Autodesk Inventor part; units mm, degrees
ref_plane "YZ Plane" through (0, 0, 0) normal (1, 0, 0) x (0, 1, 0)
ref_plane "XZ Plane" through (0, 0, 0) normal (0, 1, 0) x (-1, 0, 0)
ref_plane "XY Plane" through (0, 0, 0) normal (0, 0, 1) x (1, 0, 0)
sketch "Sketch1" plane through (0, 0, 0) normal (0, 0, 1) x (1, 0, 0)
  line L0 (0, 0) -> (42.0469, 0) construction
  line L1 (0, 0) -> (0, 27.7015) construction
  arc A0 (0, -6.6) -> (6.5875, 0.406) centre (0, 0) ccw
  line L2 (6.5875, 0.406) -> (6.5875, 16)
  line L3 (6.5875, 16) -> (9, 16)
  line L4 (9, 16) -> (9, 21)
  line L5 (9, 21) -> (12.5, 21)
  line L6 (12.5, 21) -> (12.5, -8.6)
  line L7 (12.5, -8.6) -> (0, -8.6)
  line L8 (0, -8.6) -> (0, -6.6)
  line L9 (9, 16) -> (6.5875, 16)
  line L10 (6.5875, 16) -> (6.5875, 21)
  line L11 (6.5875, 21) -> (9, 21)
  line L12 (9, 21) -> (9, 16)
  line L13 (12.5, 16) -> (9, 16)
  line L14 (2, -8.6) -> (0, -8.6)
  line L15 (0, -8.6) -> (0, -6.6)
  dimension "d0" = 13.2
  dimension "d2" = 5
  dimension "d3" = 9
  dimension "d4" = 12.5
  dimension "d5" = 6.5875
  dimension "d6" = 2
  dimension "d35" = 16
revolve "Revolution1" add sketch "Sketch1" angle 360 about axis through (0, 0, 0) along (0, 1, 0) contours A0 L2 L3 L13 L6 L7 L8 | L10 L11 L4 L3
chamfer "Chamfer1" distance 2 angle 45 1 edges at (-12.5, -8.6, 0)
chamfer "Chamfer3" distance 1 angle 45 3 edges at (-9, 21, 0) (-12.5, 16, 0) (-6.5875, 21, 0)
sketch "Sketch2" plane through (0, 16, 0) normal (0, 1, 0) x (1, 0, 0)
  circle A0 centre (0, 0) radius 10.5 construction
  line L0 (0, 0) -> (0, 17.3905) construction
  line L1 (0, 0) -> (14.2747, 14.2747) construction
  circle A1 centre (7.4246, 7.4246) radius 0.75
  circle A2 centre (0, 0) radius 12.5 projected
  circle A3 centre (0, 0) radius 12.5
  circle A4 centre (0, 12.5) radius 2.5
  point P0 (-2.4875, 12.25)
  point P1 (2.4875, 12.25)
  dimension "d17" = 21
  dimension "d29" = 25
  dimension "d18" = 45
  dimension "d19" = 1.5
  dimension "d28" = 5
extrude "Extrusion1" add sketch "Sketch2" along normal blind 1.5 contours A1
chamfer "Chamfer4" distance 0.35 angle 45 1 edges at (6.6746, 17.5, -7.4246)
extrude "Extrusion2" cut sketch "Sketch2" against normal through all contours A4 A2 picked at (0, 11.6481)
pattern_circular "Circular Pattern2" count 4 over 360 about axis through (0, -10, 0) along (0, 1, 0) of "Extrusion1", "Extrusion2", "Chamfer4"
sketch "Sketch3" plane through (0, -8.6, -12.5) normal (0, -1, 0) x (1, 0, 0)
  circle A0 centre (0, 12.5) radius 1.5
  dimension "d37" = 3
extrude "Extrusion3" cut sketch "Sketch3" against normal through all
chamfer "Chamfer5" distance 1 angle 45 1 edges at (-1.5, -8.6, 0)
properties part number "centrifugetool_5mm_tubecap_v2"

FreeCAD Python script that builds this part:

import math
import FreeCAD as App
import Part
import Sketcher
from FreeCAD import Vector


def edges_at(feature, points):
    """Names of the edges that pass closest to the given points."""
    edges = feature.Shape.Edges
    near = lambda p: min(range(len(edges)), key=lambda i: edges[i].distToShape(Part.Vertex(*p))[0])
    return sorted({f"Edge{near(p) + 1}" for p in points})

doc = App.newDocument("Part")
params = doc.addObject("Spreadsheet::Sheet", "Params")
for row, (alias, value) in enumerate([
    ("sketch1_radius", "6.6 mm"),
    ("sketch1_height", "2 mm"),
    ("sketch1_height2", "5 mm"),
    ("sketch1_width", "12.5 mm"),
    ("revolution_angle", "360 deg"),
    ("chamfer_size", "2 mm"),
    ("chamfer2_size", "1 mm"),
    ("sketch2_diameter", "1.5 mm"),
    ("pad1_length", "1.5 mm"),
    ("chamfer3_size", "0.35 mm"),
    ("sketch3_radius", "2.5 mm"),
    ("sketch3_radius2", "12.5 mm"),
    ("sketch4_diameter", "3 mm"),
    ("chamfer4_size", "1 mm"),
], start=1):
    params.set(f"A{row}", alias)
    params.set(f"B{row}", "=" + value)
    params.setAlias(f"B{row}", alias)

body = doc.addObject("PartDesign::Body", "Body")

# Sketch on XY plane
sketch1 = doc.addObject("Sketcher::SketchObject", "Sketch")
body.addObject(sketch1)
sketch1.AttachmentSupport = (doc.XY_Plane, [""])
sketch1.MapMode = "FlatFace"
sketch1.addGeometry([
    Part.ArcOfCircle(Part.Circle(Vector(0, 0, 0), Vector(0, 0, 1), 6.6), math.radians(-90), math.radians(3.526786)),  # 0
    Part.LineSegment(Vector(0, -6.6, 0), Vector(0, -8.6, 0)),  # 1
    Part.LineSegment(Vector(0, -8.6, 0), Vector(12.5, -8.6, 0)),  # 2
    Part.LineSegment(Vector(12.5, -8.6, 0), Vector(12.5, 16, 0)),  # 3
    Part.LineSegment(Vector(12.5, 16, 0), Vector(9, 16, 0)),  # 4
    Part.LineSegment(Vector(9, 16, 0), Vector(9, 21, 0)),  # 5
    Part.LineSegment(Vector(9, 21, 0), Vector(6.5875, 21, 0)),  # 6
    Part.LineSegment(Vector(6.5875, 21, 0), Vector(6.5875, 0.406, 0)),  # 7
], False)
sketch1.addConstraint([
    Sketcher.Constraint("Coincident", 0, 1, 1, 1),
    Sketcher.Constraint("Coincident", 1, 2, 2, 1),
    Sketcher.Constraint("Coincident", 2, 2, 3, 1),
    Sketcher.Constraint("Coincident", 3, 2, 4, 1),
    Sketcher.Constraint("Coincident", 4, 2, 5, 1),
    Sketcher.Constraint("Coincident", 5, 2, 6, 1),
    Sketcher.Constraint("Coincident", 6, 2, 7, 1),
    Sketcher.Constraint("Coincident", 7, 2, 0, 2),
    Sketcher.Constraint("Vertical", 1),
    Sketcher.Constraint("Horizontal", 2),
    Sketcher.Constraint("Vertical", 3),
    Sketcher.Constraint("Horizontal", 4),
    Sketcher.Constraint("Vertical", 5),
    Sketcher.Constraint("Horizontal", 6),
    Sketcher.Constraint("Vertical", 7),
    Sketcher.Constraint("Coincident", 0, 3, -1, 1),
    Sketcher.Constraint("PointOnObject", 0, 1, -2),
    Sketcher.Constraint("Radius", 0, 6.6),
    Sketcher.Constraint("DistanceY", 1, 2, 1, 1, 2.0),
    Sketcher.Constraint("DistanceY", 5, 1, 5, 2, 5.0),
    Sketcher.Constraint("DistanceX", 2, 1, 2, 2, 12.5),
    Sketcher.Constraint("DistanceY", -1, 1, 3, 2, 16.0),
    Sketcher.Constraint("DistanceX", -1, 1, 4, 2, 9.0),
    Sketcher.Constraint("DistanceX", -1, 1, 6, 2, 6.5875),
])
sketch1.setExpression("Constraints[17]", "Params.sketch1_radius")
sketch1.setExpression("Constraints[18]", "Params.sketch1_height")
sketch1.setExpression("Constraints[19]", "Params.sketch1_height2")
sketch1.setExpression("Constraints[20]", "Params.sketch1_width")
revolution = doc.addObject("PartDesign::Revolution", "Revolution")
body.addObject(revolution)
revolution.Profile = sketch1
revolution.ReferenceAxis = (sketch1, ["V_Axis"])
revolution.setExpression("Angle", "Params.revolution_angle")
doc.recompute()

chamfer = doc.addObject("PartDesign::Chamfer", "Chamfer")
body.addObject(chamfer)
chamfer.Base = (revolution, edges_at(revolution, [(-12.5, -8.6, 0)]))
chamfer.setExpression("Size", "Params.chamfer_size")
doc.recompute()

chamfer2 = doc.addObject("PartDesign::Chamfer", "Chamfer001")
body.addObject(chamfer2)
chamfer2.Base = (chamfer, edges_at(chamfer, [(-9, 21, 0), (-12.5, 16, 0), (-6.588, 21, 0)]))
chamfer2.setExpression("Size", "Params.chamfer2_size")

# Sketch on XZ plane
sketch2 = doc.addObject("Sketcher::SketchObject", "Sketch001")
body.addObject(sketch2)
sketch2.AttachmentSupport = (doc.XZ_Plane, [""])
sketch2.MapMode = "FlatFace"
sketch2.AttachmentOffset = App.Placement(Vector(0, 0, -16), App.Rotation())
sketch2.addGeometry(Part.Circle(Vector(7.4246, -7.4246, 0), Vector(0, 0, 1), 0.75), False)
sketch2.addConstraint([
    Sketcher.Constraint("Diameter", 0, 1.5),
    Sketcher.Constraint("DistanceX", -1, 1, 0, 3, 7.4246),
    Sketcher.Constraint("DistanceY", 0, 3, -1, 1, 7.4246),
])
sketch2.setExpression("Constraints[0]", "Params.sketch2_diameter")
pad1 = doc.addObject("PartDesign::Pad", "Pad")
body.addObject(pad1)
pad1.Profile = sketch2
pad1.setExpression("Length", "Params.pad1_length")
pad1.Reversed = True
doc.recompute()

chamfer3 = doc.addObject("PartDesign::Chamfer", "Chamfer002")
body.addObject(chamfer3)
chamfer3.Base = (pad1, edges_at(pad1, [(6.675, 17.5, -7.425)]))
chamfer3.setExpression("Size", "Params.chamfer3_size")

# Sketch on XZ plane
sketch3 = doc.addObject("Sketcher::SketchObject", "Sketch002")
body.addObject(sketch3)
sketch3.AttachmentSupport = (doc.XZ_Plane, [""])
sketch3.MapMode = "FlatFace"
sketch3.AttachmentOffset = App.Placement(Vector(0, 0, -16), App.Rotation())
sketch3.addGeometry([
    Part.ArcOfCircle(Part.Circle(Vector(0, -12.5, 0), Vector(0, 0, 1), 2.5), math.radians(5.73917), math.radians(174.26083)),
    Part.ArcOfCircle(Part.Circle(Vector(0, 0, 0), Vector(0, 0, 1), 12.5), math.radians(-101.478341), math.radians(-78.521659)),
], False)
sketch3.addConstraint([
    Sketcher.Constraint("Coincident", 0, 1, 1, 2),
    Sketcher.Constraint("Coincident", 1, 1, 0, 2),
    Sketcher.Constraint("Coincident", 1, 3, -1, 1),
    Sketcher.Constraint("PointOnObject", 0, 3, -2),
    Sketcher.Constraint("Radius", 0, 2.5),
    Sketcher.Constraint("Radius", 1, 12.5),
    Sketcher.Constraint("DistanceY", 0, 3, -1, 1, 12.5),
])
sketch3.setExpression("Constraints[4]", "Params.sketch3_radius")
sketch3.setExpression("Constraints[5]", "Params.sketch3_radius2")
pocket1 = doc.addObject("PartDesign::Pocket", "Pocket")
body.addObject(pocket1)
pocket1.Profile = sketch3
pocket1.Type = "ThroughAll"
pocket1.Reversed = True
doc.recompute()

polarpattern = doc.addObject("PartDesign::PolarPattern", "PolarPattern")
body.addObject(polarpattern)
polarpattern.Originals = [pad1, pocket1, chamfer3]
polarpattern.Axis = (doc.Y_Axis, [""])
polarpattern.Angle = 360
polarpattern.Occurrences = 4
body.Tip = polarpattern

# Sketch on XZ plane
sketch4 = doc.addObject("Sketcher::SketchObject", "Sketch003")
body.addObject(sketch4)
sketch4.AttachmentSupport = (doc.XZ_Plane, [""])
sketch4.MapMode = "FlatFace"
sketch4.AttachmentOffset = App.Placement(Vector(0, 0, 8.6), App.Rotation())
sketch4.addGeometry(Part.Circle(Vector(0, 0, 0), Vector(0, 0, 1), 1.5), False)
sketch4.addConstraint([
    Sketcher.Constraint("Coincident", 0, 3, -1, 1),
    Sketcher.Constraint("Diameter", 0, 3.0),
])
sketch4.setExpression("Constraints[1]", "Params.sketch4_diameter")
pocket2 = doc.addObject("PartDesign::Pocket", "Pocket001")
body.addObject(pocket2)
pocket2.Profile = sketch4
pocket2.Type = "ThroughAll"
doc.recompute()

chamfer4 = doc.addObject("PartDesign::Chamfer", "Chamfer003")
body.addObject(chamfer4)
chamfer4.Base = (pocket2, edges_at(pocket2, [(-1.5, -8.6, 0)]))
chamfer4.setExpression("Size", "Params.chamfer4_size")

doc.recompute()
